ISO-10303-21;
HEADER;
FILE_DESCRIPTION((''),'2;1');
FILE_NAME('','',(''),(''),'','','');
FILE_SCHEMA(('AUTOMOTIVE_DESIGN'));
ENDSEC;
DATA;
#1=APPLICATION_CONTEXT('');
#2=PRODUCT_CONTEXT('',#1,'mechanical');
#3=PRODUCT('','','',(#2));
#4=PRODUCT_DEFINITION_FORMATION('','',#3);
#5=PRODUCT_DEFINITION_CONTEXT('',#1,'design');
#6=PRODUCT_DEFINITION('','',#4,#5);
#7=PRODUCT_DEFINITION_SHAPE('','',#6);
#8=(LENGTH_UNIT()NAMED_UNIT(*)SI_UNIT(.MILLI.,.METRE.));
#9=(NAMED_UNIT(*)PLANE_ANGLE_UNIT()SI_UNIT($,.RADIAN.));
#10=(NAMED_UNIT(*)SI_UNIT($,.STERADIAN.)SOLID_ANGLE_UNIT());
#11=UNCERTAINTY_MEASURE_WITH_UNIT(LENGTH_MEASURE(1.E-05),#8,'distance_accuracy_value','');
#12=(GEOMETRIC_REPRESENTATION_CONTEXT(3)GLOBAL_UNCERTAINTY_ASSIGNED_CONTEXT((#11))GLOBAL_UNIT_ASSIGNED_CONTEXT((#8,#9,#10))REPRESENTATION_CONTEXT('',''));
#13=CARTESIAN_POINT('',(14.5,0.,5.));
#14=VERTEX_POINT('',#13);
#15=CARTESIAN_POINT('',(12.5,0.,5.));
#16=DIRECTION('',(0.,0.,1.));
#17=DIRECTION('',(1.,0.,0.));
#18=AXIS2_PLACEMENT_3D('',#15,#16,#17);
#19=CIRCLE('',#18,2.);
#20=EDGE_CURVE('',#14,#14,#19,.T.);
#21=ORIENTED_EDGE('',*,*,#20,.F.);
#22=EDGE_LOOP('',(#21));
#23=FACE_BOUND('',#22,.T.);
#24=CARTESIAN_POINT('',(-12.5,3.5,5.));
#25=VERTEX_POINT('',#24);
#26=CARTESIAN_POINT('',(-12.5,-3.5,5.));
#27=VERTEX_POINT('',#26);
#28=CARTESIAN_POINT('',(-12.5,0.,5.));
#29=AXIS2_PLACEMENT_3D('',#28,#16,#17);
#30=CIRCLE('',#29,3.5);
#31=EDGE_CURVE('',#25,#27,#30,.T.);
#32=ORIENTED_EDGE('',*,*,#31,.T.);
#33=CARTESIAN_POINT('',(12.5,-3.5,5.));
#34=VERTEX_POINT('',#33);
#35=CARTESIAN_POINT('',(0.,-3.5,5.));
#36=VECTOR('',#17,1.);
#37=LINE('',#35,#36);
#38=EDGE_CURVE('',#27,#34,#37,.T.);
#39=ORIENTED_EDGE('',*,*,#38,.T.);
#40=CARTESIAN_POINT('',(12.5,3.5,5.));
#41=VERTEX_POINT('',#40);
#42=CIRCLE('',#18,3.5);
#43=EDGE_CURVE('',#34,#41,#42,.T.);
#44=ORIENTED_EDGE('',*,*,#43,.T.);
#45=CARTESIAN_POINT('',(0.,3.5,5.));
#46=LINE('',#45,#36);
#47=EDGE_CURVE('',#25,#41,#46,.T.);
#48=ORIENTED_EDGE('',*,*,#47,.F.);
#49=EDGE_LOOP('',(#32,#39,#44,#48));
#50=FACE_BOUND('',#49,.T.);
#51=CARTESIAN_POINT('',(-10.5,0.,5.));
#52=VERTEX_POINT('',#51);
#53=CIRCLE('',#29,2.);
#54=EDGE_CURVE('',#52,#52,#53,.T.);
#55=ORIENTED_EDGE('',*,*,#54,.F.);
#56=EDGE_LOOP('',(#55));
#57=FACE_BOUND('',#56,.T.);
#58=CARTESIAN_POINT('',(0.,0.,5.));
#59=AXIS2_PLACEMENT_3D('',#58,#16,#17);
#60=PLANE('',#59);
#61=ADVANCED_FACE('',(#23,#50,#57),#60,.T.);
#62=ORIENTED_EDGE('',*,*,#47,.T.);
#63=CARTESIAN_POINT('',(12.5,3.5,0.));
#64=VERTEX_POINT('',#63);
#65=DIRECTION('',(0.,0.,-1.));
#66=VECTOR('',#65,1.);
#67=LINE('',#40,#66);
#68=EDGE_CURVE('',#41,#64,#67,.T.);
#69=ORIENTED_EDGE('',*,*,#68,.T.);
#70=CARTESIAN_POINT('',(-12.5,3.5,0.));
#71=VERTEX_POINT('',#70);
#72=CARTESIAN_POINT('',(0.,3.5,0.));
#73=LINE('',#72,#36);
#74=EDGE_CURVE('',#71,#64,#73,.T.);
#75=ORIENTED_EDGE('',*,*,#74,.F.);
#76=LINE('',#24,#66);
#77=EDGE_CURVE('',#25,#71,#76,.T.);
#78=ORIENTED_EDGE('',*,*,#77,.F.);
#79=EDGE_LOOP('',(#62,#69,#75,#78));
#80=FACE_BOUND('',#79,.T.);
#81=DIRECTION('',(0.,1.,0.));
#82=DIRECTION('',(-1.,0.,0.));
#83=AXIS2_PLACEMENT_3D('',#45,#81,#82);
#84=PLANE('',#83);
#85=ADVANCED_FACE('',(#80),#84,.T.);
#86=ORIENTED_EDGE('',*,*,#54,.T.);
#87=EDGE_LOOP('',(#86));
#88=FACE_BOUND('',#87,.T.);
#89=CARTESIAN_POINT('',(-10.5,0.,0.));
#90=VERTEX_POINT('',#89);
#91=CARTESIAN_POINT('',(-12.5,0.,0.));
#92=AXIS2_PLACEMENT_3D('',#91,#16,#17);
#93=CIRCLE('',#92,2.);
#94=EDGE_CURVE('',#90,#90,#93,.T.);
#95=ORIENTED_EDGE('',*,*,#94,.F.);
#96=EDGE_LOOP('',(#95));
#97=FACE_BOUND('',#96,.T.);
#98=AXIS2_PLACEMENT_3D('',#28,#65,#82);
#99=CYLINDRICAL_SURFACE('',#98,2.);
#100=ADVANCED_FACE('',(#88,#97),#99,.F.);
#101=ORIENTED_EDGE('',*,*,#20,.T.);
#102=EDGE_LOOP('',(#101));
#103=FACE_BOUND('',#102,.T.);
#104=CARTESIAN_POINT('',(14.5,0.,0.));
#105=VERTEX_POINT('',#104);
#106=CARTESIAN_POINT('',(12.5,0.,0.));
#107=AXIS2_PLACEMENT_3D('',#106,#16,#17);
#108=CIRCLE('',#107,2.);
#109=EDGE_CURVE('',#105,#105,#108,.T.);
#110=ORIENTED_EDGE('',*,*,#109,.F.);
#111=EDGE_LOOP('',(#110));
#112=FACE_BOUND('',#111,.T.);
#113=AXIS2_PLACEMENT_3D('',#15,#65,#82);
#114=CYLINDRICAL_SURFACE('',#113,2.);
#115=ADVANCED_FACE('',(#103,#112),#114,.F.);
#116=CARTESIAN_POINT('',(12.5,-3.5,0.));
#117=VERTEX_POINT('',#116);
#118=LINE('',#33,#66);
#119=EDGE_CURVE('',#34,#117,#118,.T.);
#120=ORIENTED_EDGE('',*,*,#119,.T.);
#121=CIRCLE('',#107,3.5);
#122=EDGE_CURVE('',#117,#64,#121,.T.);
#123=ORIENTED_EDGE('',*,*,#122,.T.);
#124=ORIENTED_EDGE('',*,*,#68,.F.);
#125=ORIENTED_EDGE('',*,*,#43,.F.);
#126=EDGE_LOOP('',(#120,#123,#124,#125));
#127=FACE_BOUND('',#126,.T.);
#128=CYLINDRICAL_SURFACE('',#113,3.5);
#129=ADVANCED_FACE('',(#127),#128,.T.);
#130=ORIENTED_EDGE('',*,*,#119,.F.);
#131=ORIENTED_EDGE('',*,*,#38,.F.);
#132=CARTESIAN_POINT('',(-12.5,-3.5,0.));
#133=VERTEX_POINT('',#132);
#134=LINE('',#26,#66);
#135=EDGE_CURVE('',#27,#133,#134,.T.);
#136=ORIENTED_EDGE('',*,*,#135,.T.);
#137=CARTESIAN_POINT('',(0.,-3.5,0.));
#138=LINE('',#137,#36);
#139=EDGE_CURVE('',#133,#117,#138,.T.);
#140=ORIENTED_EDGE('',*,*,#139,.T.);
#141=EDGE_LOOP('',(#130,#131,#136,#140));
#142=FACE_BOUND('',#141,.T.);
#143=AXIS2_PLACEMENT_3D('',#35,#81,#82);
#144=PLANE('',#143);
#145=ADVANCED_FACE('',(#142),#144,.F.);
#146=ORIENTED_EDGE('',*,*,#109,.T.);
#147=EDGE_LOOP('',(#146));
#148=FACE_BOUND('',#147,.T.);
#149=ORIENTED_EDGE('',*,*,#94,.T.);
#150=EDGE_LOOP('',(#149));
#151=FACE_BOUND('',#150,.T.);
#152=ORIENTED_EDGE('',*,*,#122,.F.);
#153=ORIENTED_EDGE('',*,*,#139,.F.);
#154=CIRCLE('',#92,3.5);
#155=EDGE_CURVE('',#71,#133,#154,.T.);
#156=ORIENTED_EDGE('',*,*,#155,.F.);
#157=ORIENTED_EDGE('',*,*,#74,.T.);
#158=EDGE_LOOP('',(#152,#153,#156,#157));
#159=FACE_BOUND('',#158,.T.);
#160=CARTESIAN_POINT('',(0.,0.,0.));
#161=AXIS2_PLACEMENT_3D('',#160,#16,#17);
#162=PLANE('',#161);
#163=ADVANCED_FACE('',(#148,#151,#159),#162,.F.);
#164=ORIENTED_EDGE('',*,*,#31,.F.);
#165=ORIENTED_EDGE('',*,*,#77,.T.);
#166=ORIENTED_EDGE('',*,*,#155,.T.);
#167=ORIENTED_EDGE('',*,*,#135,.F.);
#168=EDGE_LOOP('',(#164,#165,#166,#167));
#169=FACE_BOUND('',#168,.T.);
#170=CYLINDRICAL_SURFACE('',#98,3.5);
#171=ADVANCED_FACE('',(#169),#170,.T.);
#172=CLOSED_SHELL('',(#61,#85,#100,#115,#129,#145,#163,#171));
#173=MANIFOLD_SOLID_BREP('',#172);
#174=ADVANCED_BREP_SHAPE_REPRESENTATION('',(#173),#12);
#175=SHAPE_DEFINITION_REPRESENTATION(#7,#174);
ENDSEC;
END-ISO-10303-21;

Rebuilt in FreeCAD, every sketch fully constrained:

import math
import FreeCAD as App
import Part
import Sketcher
from FreeCAD import Vector

doc = App.newDocument("Part")
params = doc.addObject("Spreadsheet::Sheet", "Params")
for row, (alias, value) in enumerate([
    ("sketch1_diameter", "4 mm"),
    ("sketch1_radius", "3.5 mm"),
    ("sketch1_width", "25 mm"),
    ("pad1_length", "5 mm"),
], start=1):
    params.set(f"A{row}", alias)
    params.set(f"B{row}", "=" + value)
    params.setAlias(f"B{row}", alias)

body = doc.addObject("PartDesign::Body", "Body")

# Sketch on XY plane
sketch1 = doc.addObject("Sketcher::SketchObject", "Sketch")
body.addObject(sketch1)
sketch1.AttachmentSupport = (doc.XY_Plane, [""])
sketch1.MapMode = "FlatFace"
sketch1.addGeometry(Part.LineSegment(Vector(-12.5, -3.5, 0), Vector(12.5, -3.5, 0)), False)
sketch1.addGeometry(Part.ArcOfCircle(Part.Circle(Vector(12.5, 0, 0), Vector(0, 0, 1), 3.5), math.radians(-90), math.radians(90)), False)
sketch1.addGeometry(Part.LineSegment(Vector(12.5, 3.5, 0), Vector(-12.5, 3.5, 0)), False)
sketch1.addGeometry(Part.ArcOfCircle(Part.Circle(Vector(-12.5, 0, 0), Vector(0, 0, 1), 3.5), math.radians(90), math.radians(270)), False)
sketch1.addGeometry(Part.Circle(Vector(-12.5, 0, 0), Vector(0, 0, 1), 2), False)
sketch1.addGeometry(Part.Circle(Vector(12.5, 0, 0), Vector(0, 0, 1), 2), False)
sketch1.addConstraint(Sketcher.Constraint("Tangent", 0, 2, 1, 1))
sketch1.addConstraint(Sketcher.Constraint("Tangent", 1, 2, 2, 1))
sketch1.addConstraint(Sketcher.Constraint("Tangent", 2, 2, 3, 1))
sketch1.addConstraint(Sketcher.Constraint("Tangent", 3, 2, 0, 1))
sketch1.addConstraint(Sketcher.Constraint("Horizontal", 0))
sketch1.addConstraint(Sketcher.Constraint("Horizontal", 2))
sketch1.addConstraint(Sketcher.Constraint("Coincident", 4, 3, 3, 3))
sketch1.addConstraint(Sketcher.Constraint("Coincident", 5, 3, 1, 3))
sketch1.addConstraint(Sketcher.Constraint("Equal", 4, 5))
sketch1.addConstraint(Sketcher.Constraint("Symmetric", 1, 3, 3, 3, -1, 1))
sketch1.addConstraint(Sketcher.Constraint("Diameter", 4, 4.0))
sketch1.addConstraint(Sketcher.Constraint("Radius", 1, 3.5))
sketch1.addConstraint(Sketcher.Constraint("DistanceX", 0, 1, 0, 2, 25.0))
sketch1.setExpression("Constraints[10]", "Params.sketch1_diameter")
sketch1.setExpression("Constraints[11]", "Params.sketch1_radius")
sketch1.setExpression("Constraints[12]", "Params.sketch1_width")
pad1 = doc.addObject("PartDesign::Pad", "Pad")
body.addObject(pad1)
pad1.Profile = sketch1
pad1.setExpression("Length", "Params.pad1_length")

doc.recompute()
